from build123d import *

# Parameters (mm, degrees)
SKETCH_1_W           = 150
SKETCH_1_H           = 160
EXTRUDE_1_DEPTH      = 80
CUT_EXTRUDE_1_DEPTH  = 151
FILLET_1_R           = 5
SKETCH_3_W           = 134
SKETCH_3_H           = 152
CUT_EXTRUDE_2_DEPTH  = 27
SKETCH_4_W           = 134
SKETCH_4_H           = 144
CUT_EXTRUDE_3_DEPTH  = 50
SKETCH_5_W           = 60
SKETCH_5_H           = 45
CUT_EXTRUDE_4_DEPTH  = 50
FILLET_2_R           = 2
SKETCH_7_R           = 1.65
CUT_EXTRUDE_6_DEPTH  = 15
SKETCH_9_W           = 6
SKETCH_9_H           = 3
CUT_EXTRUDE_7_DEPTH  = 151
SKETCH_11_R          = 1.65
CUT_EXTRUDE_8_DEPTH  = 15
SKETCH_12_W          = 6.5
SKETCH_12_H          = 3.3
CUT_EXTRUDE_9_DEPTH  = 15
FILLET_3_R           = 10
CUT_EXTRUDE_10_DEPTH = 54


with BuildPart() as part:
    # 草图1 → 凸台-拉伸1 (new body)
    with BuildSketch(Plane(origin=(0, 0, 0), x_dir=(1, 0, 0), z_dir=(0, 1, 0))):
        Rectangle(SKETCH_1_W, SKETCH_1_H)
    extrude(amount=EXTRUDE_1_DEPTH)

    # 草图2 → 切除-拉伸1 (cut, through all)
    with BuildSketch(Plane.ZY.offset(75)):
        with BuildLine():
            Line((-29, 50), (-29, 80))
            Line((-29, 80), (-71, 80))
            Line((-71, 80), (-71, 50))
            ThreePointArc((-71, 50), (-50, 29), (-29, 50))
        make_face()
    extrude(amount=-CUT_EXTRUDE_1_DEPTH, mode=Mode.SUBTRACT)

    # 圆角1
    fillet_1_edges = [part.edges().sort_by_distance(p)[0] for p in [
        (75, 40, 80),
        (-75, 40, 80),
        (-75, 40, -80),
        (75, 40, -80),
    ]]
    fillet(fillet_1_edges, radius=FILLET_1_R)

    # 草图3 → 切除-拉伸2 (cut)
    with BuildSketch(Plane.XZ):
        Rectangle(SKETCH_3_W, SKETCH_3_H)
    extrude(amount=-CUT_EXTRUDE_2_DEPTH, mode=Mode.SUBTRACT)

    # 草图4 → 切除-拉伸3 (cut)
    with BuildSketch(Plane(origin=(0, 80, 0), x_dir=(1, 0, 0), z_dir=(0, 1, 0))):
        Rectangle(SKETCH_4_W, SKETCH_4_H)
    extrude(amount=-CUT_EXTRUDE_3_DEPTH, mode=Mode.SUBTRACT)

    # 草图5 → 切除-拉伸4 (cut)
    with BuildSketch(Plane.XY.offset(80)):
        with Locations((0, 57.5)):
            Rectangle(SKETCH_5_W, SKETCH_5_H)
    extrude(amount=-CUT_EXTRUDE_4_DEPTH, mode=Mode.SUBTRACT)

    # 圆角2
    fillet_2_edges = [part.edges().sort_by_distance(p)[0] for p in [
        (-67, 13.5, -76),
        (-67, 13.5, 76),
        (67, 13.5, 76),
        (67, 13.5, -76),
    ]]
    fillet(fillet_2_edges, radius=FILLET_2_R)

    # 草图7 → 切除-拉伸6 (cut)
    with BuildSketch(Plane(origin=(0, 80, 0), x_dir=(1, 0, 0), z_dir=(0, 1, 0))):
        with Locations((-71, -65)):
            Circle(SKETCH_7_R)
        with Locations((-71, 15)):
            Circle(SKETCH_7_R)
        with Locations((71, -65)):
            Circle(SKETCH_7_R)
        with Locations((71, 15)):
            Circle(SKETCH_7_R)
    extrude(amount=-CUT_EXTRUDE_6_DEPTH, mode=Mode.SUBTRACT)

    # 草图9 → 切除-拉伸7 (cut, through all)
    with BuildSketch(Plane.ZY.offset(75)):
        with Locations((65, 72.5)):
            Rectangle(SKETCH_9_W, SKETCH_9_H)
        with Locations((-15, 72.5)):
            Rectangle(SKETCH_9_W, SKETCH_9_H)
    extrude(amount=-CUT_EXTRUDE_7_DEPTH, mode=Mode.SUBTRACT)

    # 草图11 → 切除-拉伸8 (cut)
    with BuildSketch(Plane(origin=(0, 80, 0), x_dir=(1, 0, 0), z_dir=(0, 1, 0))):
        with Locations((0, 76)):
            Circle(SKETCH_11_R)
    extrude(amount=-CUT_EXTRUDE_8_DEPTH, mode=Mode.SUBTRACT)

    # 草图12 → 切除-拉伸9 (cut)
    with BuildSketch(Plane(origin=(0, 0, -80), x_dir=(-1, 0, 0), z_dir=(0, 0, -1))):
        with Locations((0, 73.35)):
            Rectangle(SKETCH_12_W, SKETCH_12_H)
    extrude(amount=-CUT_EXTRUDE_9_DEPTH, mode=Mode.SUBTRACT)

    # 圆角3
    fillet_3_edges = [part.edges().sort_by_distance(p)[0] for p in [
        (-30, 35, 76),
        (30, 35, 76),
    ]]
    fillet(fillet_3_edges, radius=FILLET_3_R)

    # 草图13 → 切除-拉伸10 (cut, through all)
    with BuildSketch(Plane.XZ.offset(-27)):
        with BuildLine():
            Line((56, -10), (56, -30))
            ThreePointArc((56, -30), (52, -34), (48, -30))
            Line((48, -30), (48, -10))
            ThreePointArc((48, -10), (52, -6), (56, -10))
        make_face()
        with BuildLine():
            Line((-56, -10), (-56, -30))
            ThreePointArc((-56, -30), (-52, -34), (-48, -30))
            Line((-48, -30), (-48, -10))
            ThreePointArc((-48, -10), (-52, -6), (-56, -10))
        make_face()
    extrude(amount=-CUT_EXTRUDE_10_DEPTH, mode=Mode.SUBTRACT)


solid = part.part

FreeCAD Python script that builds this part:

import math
import FreeCAD as App
import Part
import Sketcher
from FreeCAD import Vector


def edges_at(feature, points):
    """Names of the edges that pass closest to the given points."""
    edges = feature.Shape.Edges
    near = lambda p: min(range(len(edges)), key=lambda i: edges[i].distToShape(Part.Vertex(*p))[0])
    return sorted({f"Edge{near(p) + 1}" for p in points})


def add_polygon(sketch, points):
    """Adds a closed chain of lines whose ends are joined by coincident constraints."""
    first, n = sketch.GeometryCount, len(points)
    for a, b in zip(points, points[1:] + points[:1]):
        sketch.addGeometry(Part.LineSegment(App.Vector(*a, 0), App.Vector(*b, 0)), False)
    for i in range(n):
        sketch.addConstraint(Sketcher.Constraint("Coincident", first + i, 2, first + (i + 1) % n, 1))

doc = App.newDocument("Part")
body = doc.addObject("PartDesign::Body", "Body")

sketch1 = body.newObject("Sketcher::SketchObject", "Sketch")
sketch1.AttachmentSupport = (doc.getObject("XZ_Plane"), [""])
sketch1.MapMode = "FlatFace"
add_polygon(sketch1, [(-75, -80), (-75, 80), (75, 80), (75, -80)])
sketch1.addConstraint(Sketcher.Constraint("Vertical", 0))
sketch1.addConstraint(Sketcher.Constraint("Horizontal", 1))
sketch1.addConstraint(Sketcher.Constraint("Vertical", 2))
sketch1.addConstraint(Sketcher.Constraint("Horizontal", 3))
sketch1.addConstraint(Sketcher.Constraint("Symmetric", 0, 2, 2, 2, -1, 1))
sketch1.addConstraint(Sketcher.Constraint("DistanceX", 1, 1, 1, 2, 150.0))
sketch1.addConstraint(Sketcher.Constraint("DistanceY", 0, 1, 0, 2, 160.0))
pad1 = body.newObject("PartDesign::Pad", "Pad")
pad1.Profile = sketch1
pad1.Length = 80
pad1.Reversed = True

sketch2 = body.newObject("Sketcher::SketchObject", "Sketch001")
sketch2.AttachmentSupport = (doc.getObject("YZ_Plane"), [""])
sketch2.MapMode = "FlatFace"
sketch2.AttachmentOffset = App.Placement(Vector(0, 0, -75), App.Rotation())
sketch2.addGeometry(Part.LineSegment(Vector(50, -29, 0), Vector(80, -29, 0)), False)
sketch2.addGeometry(Part.LineSegment(Vector(80, -29, 0), Vector(80, -71, 0)), False)
sketch2.addGeometry(Part.LineSegment(Vector(80, -71, 0), Vector(50, -71, 0)), False)
sketch2.addGeometry(Part.ArcOfCircle(Part.Circle(Vector(50, -50, 0), Vector(0, 0, 1), 21), math.radians(90), math.radians(270)), False)
sketch2.addConstraint(Sketcher.Constraint("Coincident", 0, 2, 1, 1))
sketch2.addConstraint(Sketcher.Constraint("Coincident", 1, 2, 2, 1))
sketch2.addConstraint(Sketcher.Constraint("Tangent", 2, 2, 3, 2))
sketch2.addConstraint(Sketcher.Constraint("Tangent", 3, 1, 0, 1))
sketch2.addConstraint(Sketcher.Constraint("Horizontal", 0))
sketch2.addConstraint(Sketcher.Constraint("Vertical", 1))
sketch2.addConstraint(Sketcher.Constraint("Horizontal", 2))
sketch2.addConstraint(Sketcher.Constraint("Radius", 3, 21.0))
sketch2.addConstraint(Sketcher.Constraint("DistanceX", 0, 1, 0, 2, 30.0))
sketch2.addConstraint(Sketcher.Constraint("DistanceX", -1, 1, 3, 3, 50.0))
sketch2.addConstraint(Sketcher.Constraint("DistanceY", 3, 3, -1, 1, 50.0))
pocket1 = body.newObject("PartDesign::Pocket", "Pocket")
pocket1.Profile = sketch2
pocket1.Type = "ThroughAll"
pocket1.Reversed = True
doc.recompute()

fillet = body.newObject("PartDesign::Fillet", "Fillet")
fillet.Base = (pocket1, edges_at(pocket1, [
    (75, 40, 80),
    (-75, 40, 80),
    (-75, 40, -80),
    (75, 40, -80),
]))
fillet.Radius = 5

sketch3 = body.newObject("Sketcher::SketchObject", "Sketch002")
sketch3.AttachmentSupport = (doc.getObject("XZ_Plane"), [""])
sketch3.MapMode = "FlatFace"
add_polygon(sketch3, [(-67, 76), (-67, -76), (67, -76), (67, 76)])
sketch3.addConstraint(Sketcher.Constraint("Vertical", 0))
sketch3.addConstraint(Sketcher.Constraint("Horizontal", 1))
sketch3.addConstraint(Sketcher.Constraint("Vertical", 2))
sketch3.addConstraint(Sketcher.Constraint("Horizontal", 3))
sketch3.addConstraint(Sketcher.Constraint("Symmetric", 0, 2, 2, 2, -1, 1))
sketch3.addConstraint(Sketcher.Constraint("DistanceX", 1, 1, 1, 2, 134.0))
sketch3.addConstraint(Sketcher.Constraint("DistanceY", 0, 2, 0, 1, 152.0))
pocket2 = body.newObject("PartDesign::Pocket", "Pocket001")
pocket2.Profile = sketch3
pocket2.Length = 27

sketch4 = body.newObject("Sketcher::SketchObject", "Sketch003")
sketch4.AttachmentSupport = (doc.getObject("XZ_Plane"), [""])
sketch4.MapMode = "FlatFace"
sketch4.AttachmentOffset = App.Placement(Vector(0, 0, -80), App.Rotation())
add_polygon(sketch4, [(-67, -72), (-67, 72), (67, 72), (67, -72)])
sketch4.addConstraint(Sketcher.Constraint("Vertical", 0))
sketch4.addConstraint(Sketcher.Constraint("Horizontal", 1))
sketch4.addConstraint(Sketcher.Constraint("Vertical", 2))
sketch4.addConstraint(Sketcher.Constraint("Horizontal", 3))
sketch4.addConstraint(Sketcher.Constraint("Symmetric", 0, 2, 2, 2, -1, 1))
sketch4.addConstraint(Sketcher.Constraint("DistanceX", 1, 1, 1, 2, 134.0))
sketch4.addConstraint(Sketcher.Constraint("DistanceY", 0, 1, 0, 2, 144.0))
pocket3 = body.newObject("PartDesign::Pocket", "Pocket002")
pocket3.Profile = sketch4
pocket3.Length = 50
pocket3.Reversed = True

sketch5 = body.newObject("Sketcher::SketchObject", "Sketch004")
sketch5.AttachmentSupport = (doc.getObject("XY_Plane"), [""])
sketch5.MapMode = "FlatFace"
sketch5.AttachmentOffset = App.Placement(Vector(0, 0, 80), App.Rotation())
add_polygon(sketch5, [(-30, 80), (-30, 35), (30, 35), (30, 80)])
sketch5.addConstraint(Sketcher.Constraint("Vertical", 0))
sketch5.addConstraint(Sketcher.Constraint("Horizontal", 1))
sketch5.addConstraint(Sketcher.Constraint("Vertical", 2))
sketch5.addConstraint(Sketcher.Constraint("Horizontal", 3))
sketch5.addConstraint(Sketcher.Constraint("DistanceX", 1, 1, 1, 2, 60.0))
sketch5.addConstraint(Sketcher.Constraint("DistanceY", 0, 2, 0, 1, 45.0))
sketch5.addConstraint(Sketcher.Constraint("DistanceX", 0, 2, -1, 1, 30.0))
sketch5.addConstraint(Sketcher.Constraint("DistanceY", -1, 1, 0, 2, 35.0))
pocket4 = body.newObject("PartDesign::Pocket", "Pocket003")
pocket4.Profile = sketch5
pocket4.Length = 50
doc.recompute()

fillet2 = body.newObject("PartDesign::Fillet", "Fillet001")
fillet2.Base = (pocket4, edges_at(pocket4, [
    (-67, 13.5, -76),
    (-67, 13.5, 76),
    (67, 13.5, 76),
    (67, 13.5, -76),
]))
fillet2.Radius = 2

sketch6 = body.newObject("Sketcher::SketchObject", "Sketch005")
sketch6.AttachmentSupport = (doc.getObject("XZ_Plane"), [""])
sketch6.MapMode = "FlatFace"
sketch6.AttachmentOffset = App.Placement(Vector(0, 0, -80), App.Rotation())
sketch6.addGeometry(Part.Circle(Vector(-71, 65, 0), Vector(0, 0, 1), 1.6), False)
sketch6.addGeometry(Part.Circle(Vector(-71, -15, 0), Vector(0, 0, 1), 1.6), False)
sketch6.addGeometry(Part.Circle(Vector(71, 65, 0), Vector(0, 0, 1), 1.6), False)
sketch6.addGeometry(Part.Circle(Vector(71, -15, 0), Vector(0, 0, 1), 1.6), False)
sketch6.addConstraint(Sketcher.Constraint("Equal", 0, 1))
sketch6.addConstraint(Sketcher.Constraint("Equal", 1, 2))
sketch6.addConstraint(Sketcher.Constraint("Equal", 2, 3))
sketch6.addConstraint(Sketcher.Constraint("Symmetric", 0, 3, 2, 3, -2))
sketch6.addConstraint(Sketcher.Constraint("Symmetric", 1, 3, 3, 3, -2))
sketch6.addConstraint(Sketcher.Constraint("Vertical", 0, 3, 1, 3))
sketch6.addConstraint(Sketcher.Constraint("Diameter", 0, 3.3))
sketch6.addConstraint(Sketcher.Constraint("DistanceX", 0, 3, -1, 1, 71.0))
sketch6.addConstraint(Sketcher.Constraint("DistanceY", -1, 1, 0, 3, 65.0))
sketch6.addConstraint(Sketcher.Constraint("DistanceY", 1, 3, -1, 1, 15.0))
pocket5 = body.newObject("PartDesign::Pocket", "Pocket004")
pocket5.Profile = sketch6
pocket5.Length = 15
pocket5.Reversed = True

sketch7 = body.newObject("Sketcher::SketchObject", "Sketch006")
sketch7.AttachmentSupport = (doc.getObject("YZ_Plane"), [""])
sketch7.MapMode = "FlatFace"
sketch7.AttachmentOffset = App.Placement(Vector(0, 0, -75), App.Rotation())
add_polygon(sketch7, [(74, 62), (71, 62), (71, 68), (74, 68)])
add_polygon(sketch7, [(74, -18), (71, -18), (71, -12), (74, -12)])
sketch7.addConstraint(Sketcher.Constraint("Horizontal", 0))
sketch7.addConstraint(Sketcher.Constraint("Vertical", 1))
sketch7.addConstraint(Sketcher.Constraint("Horizontal", 2))
sketch7.addConstraint(Sketcher.Constraint("Vertical", 3))
sketch7.addConstraint(Sketcher.Constraint("Horizontal", 4))
sketch7.addConstraint(Sketcher.Constraint("Vertical", 5))
sketch7.addConstraint(Sketcher.Constraint("Horizontal", 6))
sketch7.addConstraint(Sketcher.Constraint("Vertical", 7))
sketch7.addConstraint(Sketcher.Constraint("Vertical", 1, 2, 4, 2))
sketch7.addConstraint(Sketcher.Constraint("Vertical", 3, 2, 6, 2))
sketch7.addConstraint(Sketcher.Constraint("Equal", 3, 5))
sketch7.addConstraint(Sketcher.Constraint("DistanceX", 0, 2, 0, 1, 3.0))
sketch7.addConstraint(Sketcher.Constraint("DistanceY", 1, 1, 1, 2, 6.0))
sketch7.addConstraint(Sketcher.Constraint("DistanceX", -1, 1, 0, 2, 71.0))
sketch7.addConstraint(Sketcher.Constraint("DistanceY", -1, 1, 0, 2, 62.0))
sketch7.addConstraint(Sketcher.Constraint("DistanceY", 4, 2, -1, 1, 18.0))
pocket6 = body.newObject("PartDesign::Pocket", "Pocket005")
pocket6.Profile = sketch7
pocket6.Type = "ThroughAll"
pocket6.Reversed = True

sketch8 = body.newObject("Sketcher::SketchObject", "Sketch007")
sketch8.AttachmentSupport = (doc.getObject("XZ_Plane"), [""])
sketch8.MapMode = "FlatFace"
sketch8.AttachmentOffset = App.Placement(Vector(0, 0, -80), App.Rotation())
sketch8.addGeometry(Part.Circle(Vector(0, -76, 0), Vector(0, 0, 1), 1.6), False)
sketch8.addConstraint(Sketcher.Constraint("PointOnObject", 0, 3, -2))
sketch8.addConstraint(Sketcher.Constraint("Diameter", 0, 3.3))
sketch8.addConstraint(Sketcher.Constraint("DistanceY", 0, 3, -1, 1, 76.0))
pocket7 = body.newObject("PartDesign::Pocket", "Pocket006")
pocket7.Profile = sketch8
pocket7.Length = 15
pocket7.Reversed = True

sketch9 = body.newObject("Sketcher::SketchObject", "Sketch008")
sketch9.AttachmentSupport = (doc.getObject("XY_Plane"), [""])
sketch9.MapMode = "FlatFace"
sketch9.AttachmentOffset = App.Placement(Vector(0, 0, -80), App.Rotation())
add_polygon(sketch9, [(3.2, 75), (3.2, 71.7), (-3.2, 71.7), (-3.2, 75)])
sketch9.addConstraint(Sketcher.Constraint("Vertical", 0))
sketch9.addConstraint(Sketcher.Constraint("Horizontal", 1))
sketch9.addConstraint(Sketcher.Constraint("Vertical", 2))
sketch9.addConstraint(Sketcher.Constraint("Horizontal", 3))
sketch9.addConstraint(Sketcher.Constraint("DistanceX", 1, 2, 1, 1, 6.5))
sketch9.addConstraint(Sketcher.Constraint("DistanceY", 0, 2, 0, 1, 3.3))
sketch9.addConstraint(Sketcher.Constraint("DistanceY", -1, 1, 2, 2, 75.0))
sketch9.addConstraint(Sketcher.Constraint("DistanceX", -1, 1, 0, 2, 3.25))
pocket8 = body.newObject("PartDesign::Pocket", "Pocket007")
pocket8.Profile = sketch9
pocket8.Length = 15
pocket8.Reversed = True
doc.recompute()

fillet3 = body.newObject("PartDesign::Fillet", "Fillet002")
fillet3.Base = (pocket8, edges_at(pocket8, [(-30, 35, 76), (30, 35, 76)]))
fillet3.Radius = 10

sketch10 = body.newObject("Sketcher::SketchObject", "Sketch009")
sketch10.AttachmentSupport = (doc.getObject("XZ_Plane"), [""])
sketch10.MapMode = "FlatFace"
sketch10.AttachmentOffset = App.Placement(Vector(0, 0, -27), App.Rotation())
sketch10.addGeometry(Part.LineSegment(Vector(56, -30, 0), Vector(56, -10, 0)), False)
sketch10.addGeometry(Part.ArcOfCircle(Part.Circle(Vector(52, -10, 0), Vector(0, 0, 1), 4), math.radians(0), math.radians(180)), False)
sketch10.addGeometry(Part.LineSegment(Vector(48, -10, 0), Vector(48, -30, 0)), False)
sketch10.addGeometry(Part.ArcOfCircle(Part.Circle(Vector(52, -30, 0), Vector(0, 0, 1), 4), math.radians(180), math.radians(360)), False)
sketch10.addGeometry(Part.LineSegment(Vector(-56, -10, 0), Vector(-56, -30, 0)), False)
sketch10.addGeometry(Part.ArcOfCircle(Part.Circle(Vector(-52, -30, 0), Vector(0, 0, 1), 4), math.radians(180), math.radians(360)), False)
sketch10.addGeometry(Part.LineSegment(Vector(-48, -30, 0), Vector(-48, -10, 0)), False)
sketch10.addGeometry(Part.ArcOfCircle(Part.Circle(Vector(-52, -10, 0), Vector(0, 0, 1), 4), math.radians(0), math.radians(180)), False)
sketch10.addConstraint(Sketcher.Constraint("Tangent", 0, 2, 1, 1))
sketch10.addConstraint(Sketcher.Constraint("Tangent", 1, 2, 2, 1))
sketch10.addConstraint(Sketcher.Constraint("Tangent", 2, 2, 3, 1))
sketch10.addConstraint(Sketcher.Constraint("Tangent", 3, 2, 0, 1))
sketch10.addConstraint(Sketcher.Constraint("Tangent", 4, 2, 5, 1))
sketch10.addConstraint(Sketcher.Constraint("Tangent", 5, 2, 6, 1))
sketch10.addConstraint(Sketcher.Constraint("Tangent", 6, 2, 7, 1))
sketch10.addConstraint(Sketcher.Constraint("Tangent", 7, 2, 4, 1))
sketch10.addConstraint(Sketcher.Constraint("Vertical", 0))
sketch10.addConstraint(Sketcher.Constraint("Vertical", 2))
sketch10.addConstraint(Sketcher.Constraint("Vertical", 4))
sketch10.addConstraint(Sketcher.Constraint("Vertical", 6))
sketch10.addConstraint(Sketcher.Constraint("Equal", 3, 5))
sketch10.addConstraint(Sketcher.Constraint("Symmetric", 3, 3, 5, 3, -2))
sketch10.addConstraint(Sketcher.Constraint("Horizontal", 1, 3, 7, 3))
sketch10.addConstraint(Sketcher.Constraint("Radius", 1, 4.0))
sketch10.addConstraint(Sketcher.Constraint("DistanceY", 0, 1, 0, 2, 20.0))
sketch10.addConstraint(Sketcher.Constraint("DistanceX", -1, 1, 1, 3, 52.0))
sketch10.addConstraint(Sketcher.Constraint("DistanceY", 1, 3, -1, 1, 10.0))
pocket9 = body.newObject("PartDesign::Pocket", "Pocket008")
pocket9.Profile = sketch10
pocket9.Type = "ThroughAll"

doc.recompute()
